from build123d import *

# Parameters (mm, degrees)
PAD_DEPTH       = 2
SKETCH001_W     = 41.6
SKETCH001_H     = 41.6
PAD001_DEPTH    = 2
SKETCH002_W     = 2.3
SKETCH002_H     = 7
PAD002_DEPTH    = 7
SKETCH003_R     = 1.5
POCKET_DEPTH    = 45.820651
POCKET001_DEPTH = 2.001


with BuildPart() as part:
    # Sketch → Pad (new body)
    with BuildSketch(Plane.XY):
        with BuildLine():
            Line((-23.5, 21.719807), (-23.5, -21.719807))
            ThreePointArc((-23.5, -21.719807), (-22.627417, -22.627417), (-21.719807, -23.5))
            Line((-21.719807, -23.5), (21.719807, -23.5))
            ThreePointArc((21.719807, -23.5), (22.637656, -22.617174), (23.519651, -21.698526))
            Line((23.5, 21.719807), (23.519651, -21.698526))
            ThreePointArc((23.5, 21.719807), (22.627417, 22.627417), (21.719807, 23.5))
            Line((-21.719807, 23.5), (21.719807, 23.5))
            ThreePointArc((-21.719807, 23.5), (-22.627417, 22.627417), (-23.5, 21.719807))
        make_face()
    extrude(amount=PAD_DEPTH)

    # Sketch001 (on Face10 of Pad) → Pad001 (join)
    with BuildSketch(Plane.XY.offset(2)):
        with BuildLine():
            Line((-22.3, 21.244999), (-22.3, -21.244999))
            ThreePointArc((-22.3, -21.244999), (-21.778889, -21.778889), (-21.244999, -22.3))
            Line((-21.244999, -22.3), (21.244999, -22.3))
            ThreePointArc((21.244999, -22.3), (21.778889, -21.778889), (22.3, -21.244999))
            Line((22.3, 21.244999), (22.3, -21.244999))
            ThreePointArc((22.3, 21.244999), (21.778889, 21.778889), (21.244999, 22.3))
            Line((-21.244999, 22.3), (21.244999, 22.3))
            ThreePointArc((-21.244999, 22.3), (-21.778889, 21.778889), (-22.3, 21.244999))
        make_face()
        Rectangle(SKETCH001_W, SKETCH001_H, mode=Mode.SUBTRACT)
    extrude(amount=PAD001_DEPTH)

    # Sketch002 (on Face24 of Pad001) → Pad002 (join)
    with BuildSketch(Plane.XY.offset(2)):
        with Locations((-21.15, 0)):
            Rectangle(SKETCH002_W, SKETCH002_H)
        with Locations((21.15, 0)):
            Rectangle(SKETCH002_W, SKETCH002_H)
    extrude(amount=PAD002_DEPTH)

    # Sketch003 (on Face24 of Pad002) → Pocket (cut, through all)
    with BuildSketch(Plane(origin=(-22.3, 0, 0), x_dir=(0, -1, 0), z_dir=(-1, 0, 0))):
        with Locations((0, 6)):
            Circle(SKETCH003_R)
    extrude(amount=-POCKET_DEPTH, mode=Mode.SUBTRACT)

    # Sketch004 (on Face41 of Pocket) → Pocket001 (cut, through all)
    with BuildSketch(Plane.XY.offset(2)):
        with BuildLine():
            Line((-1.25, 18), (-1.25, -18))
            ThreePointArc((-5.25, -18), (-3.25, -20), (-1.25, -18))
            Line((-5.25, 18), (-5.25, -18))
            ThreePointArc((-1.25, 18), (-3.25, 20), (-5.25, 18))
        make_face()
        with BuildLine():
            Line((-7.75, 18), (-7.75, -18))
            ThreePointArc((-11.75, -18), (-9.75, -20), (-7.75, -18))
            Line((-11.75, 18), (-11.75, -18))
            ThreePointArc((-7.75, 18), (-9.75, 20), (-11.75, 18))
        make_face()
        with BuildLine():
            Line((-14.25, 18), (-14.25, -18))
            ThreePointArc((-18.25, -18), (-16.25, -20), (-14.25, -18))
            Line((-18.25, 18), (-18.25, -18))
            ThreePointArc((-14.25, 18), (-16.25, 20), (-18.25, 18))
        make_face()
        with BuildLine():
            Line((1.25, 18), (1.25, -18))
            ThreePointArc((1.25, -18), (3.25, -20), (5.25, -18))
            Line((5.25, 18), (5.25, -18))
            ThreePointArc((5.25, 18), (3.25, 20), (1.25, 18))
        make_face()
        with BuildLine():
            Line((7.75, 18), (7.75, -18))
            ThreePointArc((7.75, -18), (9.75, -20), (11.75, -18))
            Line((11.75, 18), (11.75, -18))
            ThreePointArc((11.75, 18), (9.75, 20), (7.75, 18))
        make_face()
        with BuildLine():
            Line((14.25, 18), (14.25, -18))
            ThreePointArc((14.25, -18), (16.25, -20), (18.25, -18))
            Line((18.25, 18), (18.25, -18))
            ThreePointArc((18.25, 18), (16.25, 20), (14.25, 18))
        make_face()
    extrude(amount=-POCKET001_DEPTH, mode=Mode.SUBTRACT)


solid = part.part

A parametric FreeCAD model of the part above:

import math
import FreeCAD as App
import Part
import Sketcher


def add_polygon(sketch, points):
    """Adds a closed chain of lines whose ends are joined by coincident constraints."""
    first, n = sketch.GeometryCount, len(points)
    for a, b in zip(points, points[1:] + points[:1]):
        sketch.addGeometry(Part.LineSegment(App.Vector(*a, 0), App.Vector(*b, 0)), False)
    for i in range(n):
        sketch.addConstraint(Sketcher.Constraint("Coincident", first + i, 2, first + (i + 1) % n, 1))

doc = App.newDocument("Part")
params = doc.addObject("Spreadsheet::Sheet", "Params")
for row, (alias, value) in enumerate([
    ("pad1_length", "2 mm"),
    ("sketch2_width", "41.6 mm"),
    ("pad2_length", "2 mm"),
    ("sketch3_height", "7 mm"),
    ("sketch3_width", "2.3 mm"),
    ("pad3_length", "7 mm"),
    ("sketch4_diameter", "3 mm"),
    ("sketch5_radius", "2 mm"),
    ("sketch5_height", "36 mm"),
], start=1):
    params.set(f"A{row}", alias)
    params.set(f"B{row}", "=" + value)
    params.setAlias(f"B{row}", alias)

body = doc.addObject("PartDesign::Body", "Body")

sketch1 = doc.addObject("Sketcher::SketchObject", "Sketch")
body.addObject(sketch1)
sketch1.AttachmentSupport = (doc.XY_Plane, [""])
sketch1.MapMode = "FlatFace"
sketch1.addGeometry([
    Part.LineSegment(App.Vector(-23.5, 21.719807, 0), App.Vector(-23.5, -21.719807, 0)),
    Part.ArcOfCircle(Part.Circle(App.Vector(0.000227, 0.000227, 0), App.Vector(0, 0, 1), 32.000322), math.radians(-137.254408), math.radians(-132.745592)),
    Part.LineSegment(App.Vector(-21.719807, -23.5, 0), App.Vector(21.719807, -23.5, 0)),
    Part.ArcOfCircle(Part.Circle(App.Vector(0.000195, -0.000195, 0), App.Vector(0, 0, 1), 31.999724), math.radians(-47.254449), math.radians(-42.693685)),
    Part.LineSegment(App.Vector(23.519651, -21.698526, 0), App.Vector(23.5, 21.719807, 0)),
    Part.ArcOfCircle(Part.Circle(App.Vector(-0.000227, -0.000227, 0), App.Vector(0, 0, 1), 32.000322), math.radians(42.745592), math.radians(47.254408)),
    Part.LineSegment(App.Vector(21.719807, 23.5, 0), App.Vector(-21.719807, 23.5, 0)),
    Part.ArcOfCircle(Part.Circle(App.Vector(0.000227, -0.000227, 0), App.Vector(0, 0, 1), 32.000322), math.radians(132.745592), math.radians(137.254408)),
], False)
sketch1.addConstraint([
    Sketcher.Constraint("Coincident", 0, 2, 1, 1),
    Sketcher.Constraint("Coincident", 1, 2, 2, 1),
    Sketcher.Constraint("Coincident", 2, 2, 3, 1),
    Sketcher.Constraint("Coincident", 3, 2, 4, 1),
    Sketcher.Constraint("Coincident", 4, 2, 5, 1),
    Sketcher.Constraint("Coincident", 5, 2, 6, 1),
    Sketcher.Constraint("Coincident", 6, 2, 7, 1),
    Sketcher.Constraint("Coincident", 7, 2, 0, 1),
    Sketcher.Constraint("Vertical", 0),
    Sketcher.Constraint("Horizontal", 2),
    Sketcher.Constraint("Horizontal", 6),
    Sketcher.Constraint("Equal", 1, 5),
    Sketcher.Constraint("Equal", 5, 7),
    Sketcher.Constraint("Symmetric", 1, 3, 5, 3, -1, 1),
    Sketcher.Constraint("Symmetric", 2, 2, 6, 2, -1, 1),
    Sketcher.Constraint("Symmetric", 5, 3, 7, 3, -2),
    Sketcher.Constraint("Horizontal", 4, 2, 7, 2),
    Sketcher.Constraint("Equal", 6, 0),
    Sketcher.Constraint("DistanceX", 0, 2, -1, 1, 23.5),
    Sketcher.Constraint("DistanceY", 1, 2, -1, 1, 23.5),
    Sketcher.Constraint("Radius", 1, 32.000322),
    Sketcher.Constraint("Radius", 3, 31.999724),
    Sketcher.Constraint("DistanceY", 3, 2, 7, 3, 21.698299),
    Sketcher.Constraint("DistanceX", 2, 1, 2, 2, 43.439614),
    Sketcher.Constraint("DistanceX", -1, 1, 3, 2, 23.519651),
])
pad1 = doc.addObject("PartDesign::Pad", "Pad")
body.addObject(pad1)
pad1.Profile = sketch1
pad1.setExpression("Length", "Params.pad1_length")

sketch2 = doc.addObject("Sketcher::SketchObject", "Sketch001")
body.addObject(sketch2)
sketch2.AttachmentSupport = (doc.XY_Plane, [""])
sketch2.MapMode = "FlatFace"
sketch2.AttachmentOffset = App.Placement(App.Vector(0, 0, 2), App.Rotation())
sketch2.addGeometry(Part.LineSegment(App.Vector(-22.3, 21.244999, 0), App.Vector(-22.3, -21.244999, 0)), False)
sketch2.addGeometry(Part.ArcOfCircle(Part.Circle(App.Vector(-0.00116, -0.00116, 0), App.Vector(0, 0, 1), 30.79836), math.radians(-136.387955), math.radians(-133.612045)), False)
sketch2.addGeometry(Part.LineSegment(App.Vector(-21.244999, -22.3, 0), App.Vector(21.244999, -22.3, 0)), False)
sketch2.addGeometry(Part.ArcOfCircle(Part.Circle(App.Vector(0.00116, -0.00116, 0), App.Vector(0, 0, 1), 30.79836), math.radians(-46.387955), math.radians(-43.612045)), False)
sketch2.addGeometry(Part.LineSegment(App.Vector(22.3, -21.244999, 0), App.Vector(22.3, 21.244999, 0)), False)
sketch2.addGeometry(Part.ArcOfCircle(Part.Circle(App.Vector(0.00116, 0.00116, 0), App.Vector(0, 0, 1), 30.79836), math.radians(43.612045), math.radians(46.387955)), False)
sketch2.addGeometry(Part.LineSegment(App.Vector(21.244999, 22.3, 0), App.Vector(-21.244999, 22.3, 0)), False)
sketch2.addGeometry(Part.ArcOfCircle(Part.Circle(App.Vector(-0.00116, 0.00116, 0), App.Vector(0, 0, 1), 30.79836), math.radians(133.612045), math.radians(136.387955)), False)
add_polygon(sketch2, [(20.8, -20.8), (-20.8, -20.8), (-20.8, 20.8), (20.8, 20.8)])
sketch2.addConstraint([
    Sketcher.Constraint("Coincident", 0, 2, 1, 1),
    Sketcher.Constraint("Coincident", 1, 2, 2, 1),
    Sketcher.Constraint("Coincident", 2, 2, 3, 1),
    Sketcher.Constraint("Coincident", 3, 2, 4, 1),
    Sketcher.Constraint("Coincident", 4, 2, 5, 1),
    Sketcher.Constraint("Coincident", 5, 2, 6, 1),
    Sketcher.Constraint("Coincident", 6, 2, 7, 1),
    Sketcher.Constraint("Coincident", 7, 2, 0, 1),
    Sketcher.Constraint("Vertical", 0),
    Sketcher.Constraint("Horizontal", 2),
    Sketcher.Constraint("Vertical", 4),
    Sketcher.Constraint("Horizontal", 6),
    Sketcher.Constraint("Horizontal", 8),
    Sketcher.Constraint("Vertical", 9),
    Sketcher.Constraint("Horizontal", 10),
    Sketcher.Constraint("Vertical", 11),
    Sketcher.Constraint("Equal", 1, 3),
    Sketcher.Constraint("Equal", 3, 5),
    Sketcher.Constraint("Equal", 5, 7),
    Sketcher.Constraint("Symmetric", 1, 3, 5, 3, -1, 1),
    Sketcher.Constraint("Symmetric", 3, 3, 7, 3, -1, 1),
    Sketcher.Constraint("Symmetric", 8, 2, 10, 2, -1, 1),
    Sketcher.Constraint("Symmetric", 1, 3, 3, 3, -2),
    Sketcher.Constraint("Horizontal", 0, 2, 3, 2),
    Sketcher.Constraint("Vertical", 2, 2, 5, 2),
    Sketcher.Constraint("Equal", 6, 0),
    Sketcher.Constraint("Equal", 10, 9),
    Sketcher.Constraint("DistanceX", 8, 2, 8, 1, 41.6),
    Sketcher.Constraint("DistanceX", 0, 2, -1, 1, 22.3),
    Sketcher.Constraint("DistanceY", 2, 2, -1, 1, 22.3),
    Sketcher.Constraint("Radius", 1, 30.79836),
    Sketcher.Constraint("DistanceX", 1, 2, 2, 2, 42.489998),
])
sketch2.setExpression("Constraints[31]", "Params.sketch2_width")
pad2 = doc.addObject("PartDesign::Pad", "Pad001")
body.addObject(pad2)
pad2.Profile = sketch2
pad2.setExpression("Length", "Params.pad2_length")

sketch3 = doc.addObject("Sketcher::SketchObject", "Sketch002")
body.addObject(sketch3)
sketch3.AttachmentSupport = (doc.XY_Plane, [""])
sketch3.MapMode = "FlatFace"
sketch3.AttachmentOffset = App.Placement(App.Vector(0, 0, 2), App.Rotation())
add_polygon(sketch3, [(-22.3, 3.5), (-22.3, -3.5), (-20, -3.5), (-20, 3.5)])
add_polygon(sketch3, [(20, 3.5), (20, -3.5), (22.3, -3.5), (22.3, 3.5)])
sketch3.addConstraint([
    Sketcher.Constraint("Vertical", 0),
    Sketcher.Constraint("Horizontal", 1),
    Sketcher.Constraint("Vertical", 2),
    Sketcher.Constraint("Horizontal", 3),
    Sketcher.Constraint("Vertical", 4),
    Sketcher.Constraint("Horizontal", 5),
    Sketcher.Constraint("Vertical", 6),
    Sketcher.Constraint("Horizontal", 7),
    Sketcher.Constraint("Symmetric", 2, 2, 4, 2, -1, 1),
    Sketcher.Constraint("Symmetric", 0, 2, 6, 2, -1, 1),
    Sketcher.Constraint("Horizontal", 1, 2, 4, 2),
    Sketcher.Constraint("DistanceY", 0, 2, 0, 1, 7.0),
    Sketcher.Constraint("DistanceX", 1, 1, 1, 2, 2.3),
    Sketcher.Constraint("DistanceX", 1, 2, -1, 1, 20.0),
])
sketch3.setExpression("Constraints[19]", "Params.sketch3_height")
sketch3.setExpression("Constraints[20]", "Params.sketch3_width")
pad3 = doc.addObject("PartDesign::Pad", "Pad002")
body.addObject(pad3)
pad3.Profile = sketch3
pad3.setExpression("Length", "Params.pad3_length")

sketch4 = doc.addObject("Sketcher::SketchObject", "Sketch003")
body.addObject(sketch4)
sketch4.AttachmentSupport = (doc.YZ_Plane, [""])
sketch4.MapMode = "FlatFace"
sketch4.AttachmentOffset = App.Placement(App.Vector(0, 0, -22.3), App.Rotation())
sketch4.addGeometry(Part.Circle(App.Vector(0, 6, 0), App.Vector(0, 0, 1), 1.5), False)
sketch4.addConstraint([
    Sketcher.Constraint("PointOnObject", 0, 3, -2),
    Sketcher.Constraint("Diameter", 0, 3.0),
    Sketcher.Constraint("DistanceY", -1, 1, 0, 3, 6.0),
])
sketch4.setExpression("Constraints[1]", "Params.sketch4_diameter")
pocket1 = doc.addObject("PartDesign::Pocket", "Pocket")
body.addObject(pocket1)
pocket1.Profile = sketch4
pocket1.Type = "ThroughAll"
pocket1.Reversed = True

sketch5 = doc.addObject("Sketcher::SketchObject", "Sketch004")
body.addObject(sketch5)
sketch5.AttachmentSupport = (doc.XY_Plane, [""])
sketch5.MapMode = "FlatFace"
sketch5.AttachmentOffset = App.Placement(App.Vector(0, 0, 2), App.Rotation())
sketch5.addGeometry([
    Part.LineSegment(App.Vector(-1.2, -18, 0), App.Vector(-1.2, 18, 0)),
    Part.ArcOfCircle(Part.Circle(App.Vector(-3.2, 18, 0), App.Vector(0, 0, 1), 2), math.radians(0), math.radians(180)),
    Part.LineSegment(App.Vector(-5.2, 18, 0), App.Vector(-5.2, -18, 0)),
    Part.ArcOfCircle(Part.Circle(App.Vector(-3.2, -18, 0), App.Vector(0, 0, 1), 2), math.radians(180), math.radians(360)),
    Part.LineSegment(App.Vector(-7.8, -18, 0), App.Vector(-7.8, 18, 0)),
    Part.ArcOfCircle(Part.Circle(App.Vector(-9.8, 18, 0), App.Vector(0, 0, 1), 2), math.radians(0), math.radians(180)),
    Part.LineSegment(App.Vector(-11.8, 18, 0), App.Vector(-11.8, -18, 0)),
    Part.ArcOfCircle(Part.Circle(App.Vector(-9.8, -18, 0), App.Vector(0, 0, 1), 2), math.radians(180), math.radians(360)),
    Part.LineSegment(App.Vector(-14.2, -18, 0), App.Vector(-14.2, 18, 0)),
    Part.ArcOfCircle(Part.Circle(App.Vector(-16.2, 18, 0), App.Vector(0, 0, 1), 2), math.radians(0), math.radians(180)),
    Part.LineSegment(App.Vector(-18.2, 18, 0), App.Vector(-18.2, -18, 0)),
    Part.ArcOfCircle(Part.Circle(App.Vector(-16.2, -18, 0), App.Vector(0, 0, 1), 2), math.radians(180), math.radians(360)),
    Part.LineSegment(App.Vector(1.2, 18, 0), App.Vector(1.2, -18, 0)),
    Part.ArcOfCircle(Part.Circle(App.Vector(3.2, -18, 0), App.Vector(0, 0, 1), 2), math.radians(180), math.radians(360)),
    Part.LineSegment(App.Vector(5.2, -18, 0), App.Vector(5.2, 18, 0)),
    Part.ArcOfCircle(Part.Circle(App.Vector(3.2, 18, 0), App.Vector(0, 0, 1), 2), math.radians(0), math.radians(180)),
    Part.LineSegment(App.Vector(7.8, 18, 0), App.Vector(7.8, -18, 0)),
    Part.ArcOfCircle(Part.Circle(App.Vector(9.8, -18, 0), App.Vector(0, 0, 1), 2), math.radians(180), math.radians(360)),
    Part.LineSegment(App.Vector(11.8, -18, 0), App.Vector(11.8, 18, 0)),
    Part.ArcOfCircle(Part.Circle(App.Vector(9.8, 18, 0), App.Vector(0, 0, 1), 2), math.radians(0), math.radians(180)),
    Part.LineSegment(App.Vector(14.2, 18, 0), App.Vector(14.2, -18, 0)),
    Part.ArcOfCircle(Part.Circle(App.Vector(16.2, -18, 0), App.Vector(0, 0, 1), 2), math.radians(180), math.radians(360)),
    Part.LineSegment(App.Vector(18.2, -18, 0), App.Vector(18.2, 18, 0)),
    Part.ArcOfCircle(Part.Circle(App.Vector(16.2, 18, 0), App.Vector(0, 0, 1), 2), math.radians(0), math.radians(180)),
], False)
sketch5.addConstraint([
    Sketcher.Constraint("Tangent", 0, 2, 1, 1),
    Sketcher.Constraint("Tangent", 1, 2, 2, 1),
    Sketcher.Constraint("Tangent", 2, 2, 3, 1),
    Sketcher.Constraint("Tangent", 3, 2, 0, 1),
    Sketcher.Constraint("Tangent", 4, 2, 5, 1),
    Sketcher.Constraint("Tangent", 5, 2, 6, 1),
    Sketcher.Constraint("Tangent", 6, 2, 7, 1),
    Sketcher.Constraint("Tangent", 7, 2, 4, 1),
    Sketcher.Constraint("Tangent", 8, 2, 9, 1),
    Sketcher.Constraint("Tangent", 9, 2, 10, 1),
    Sketcher.Constraint("Tangent", 10, 2, 11, 1),
    Sketcher.Constraint("Tangent", 11, 2, 8, 1),
    Sketcher.Constraint("Tangent", 12, 2, 13, 1),
    Sketcher.Constraint("Tangent", 13, 2, 14, 1),
    Sketcher.Constraint("Tangent", 14, 2, 15, 1),
    Sketcher.Constraint("Tangent", 15, 2, 12, 1),
    Sketcher.Constraint("Tangent", 16, 2, 17, 1),
    Sketcher.Constraint("Tangent", 17, 2, 18, 1),
    Sketcher.Constraint("Tangent", 18, 2, 19, 1),
    Sketcher.Constraint("Tangent", 19, 2, 16, 1),
    Sketcher.Constraint("Tangent", 20, 2, 21, 1),
    Sketcher.Constraint("Tangent", 21, 2, 22, 1),
    Sketcher.Constraint("Tangent", 22, 2, 23, 1),
    Sketcher.Constraint("Tangent", 23, 2, 20, 1),
    Sketcher.Constraint("Vertical", 0),
    Sketcher.Constraint("Vertical", 2),
    Sketcher.Constraint("Vertical", 4),
    Sketcher.Constraint("Vertical", 6),
    Sketcher.Constraint("Vertical", 8),
    Sketcher.Constraint("Vertical", 10),
    Sketcher.Constraint("Vertical", 12),
    Sketcher.Constraint("Vertical", 14),
    Sketcher.Constraint("Vertical", 16),
    Sketcher.Constraint("Vertical", 18),
    Sketcher.Constraint("Vertical", 20),
    Sketcher.Constraint("Vertical", 22),
    Sketcher.Constraint("Equal", 3, 5),
    Sketcher.Constraint("Equal", 7, 9),
    Sketcher.Constraint("Equal", 11, 13),
    Sketcher.Constraint("Equal", 15, 17),
    Sketcher.Constraint("Equal", 19, 21),
    Sketcher.Constraint("Symmetric", 1, 3, 13, 3, -1, 1),
    Sketcher.Constraint("Symmetric", 5, 3, 17, 3, -1, 1),
    Sketcher.Constraint("Symmetric", 9, 3, 21, 3, -1, 1),
    Sketcher.Constraint("Horizontal", 1, 3, 5, 3),
    Sketcher.Constraint("Horizontal", 3, 3, 7, 3),
    Sketcher.Constraint("Horizontal", 5, 3, 9, 3),
    Sketcher.Constraint("Horizontal", 7, 3, 11, 3),
    Sketcher.Constraint("Horizontal", 11, 3, 13, 3),
    Sketcher.Constraint("Horizontal", 9, 3, 15, 3),
    Sketcher.Constraint("Horizontal", 15, 3, 19, 3),
    Sketcher.Constraint("Horizontal", 19, 3, 23, 3),
    Sketcher.Constraint("Radius", 1, 2.0),
    Sketcher.Constraint("DistanceY", 0, 1, 0, 2, 36.0),
    Sketcher.Constraint("DistanceX", 9, 3, 1, 3, 13.0),
    Sketcher.Constraint("DistanceX", 7, 3, 13, 3, 13.0),
    Sketcher.Constraint("DistanceX", 5, 3, 1, 3, 6.5),
])
sketch5.setExpression("Constraints[52]", "Params.sketch5_radius")
sketch5.setExpression("Constraints[53]", "Params.sketch5_height")
pocket2 = doc.addObject("PartDesign::Pocket", "Pocket001")
body.addObject(pocket2)
pocket2.Profile = sketch5
pocket2.Type = "ThroughAll"

doc.recompute()
